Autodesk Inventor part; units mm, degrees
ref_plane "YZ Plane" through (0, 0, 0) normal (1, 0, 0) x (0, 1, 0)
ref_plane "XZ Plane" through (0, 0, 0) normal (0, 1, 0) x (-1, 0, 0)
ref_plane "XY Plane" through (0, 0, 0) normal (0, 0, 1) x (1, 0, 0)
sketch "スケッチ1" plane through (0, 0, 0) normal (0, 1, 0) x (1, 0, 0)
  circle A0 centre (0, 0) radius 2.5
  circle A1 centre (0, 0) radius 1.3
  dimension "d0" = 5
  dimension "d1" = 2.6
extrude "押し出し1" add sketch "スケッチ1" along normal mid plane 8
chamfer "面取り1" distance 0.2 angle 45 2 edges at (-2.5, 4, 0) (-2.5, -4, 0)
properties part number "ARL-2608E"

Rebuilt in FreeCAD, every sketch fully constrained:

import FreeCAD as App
import Part
import Sketcher

V = App.Vector
Q = App.Units.Quantity


def edges_at(feature, points):
    """Names of the edges that pass closest to the given points."""
    edges = feature.Shape.Edges
    near = lambda p: min(range(len(edges)), key=lambda i: edges[i].distToShape(Part.Vertex(*p))[0])
    return sorted({f"Edge{near(p) + 1}" for p in points})

doc = App.newDocument("Part")
body = doc.addObject("PartDesign::Body", "Body")

# Sketch on XZ plane
sketch1 = body.newObject("Sketcher::SketchObject", "Sketch")
sketch1.AttachmentSupport = (doc.getObject("XZ_Plane"), [""])
sketch1.MapMode = "FlatFace"
sketch1.addGeometry([
    Part.Circle(V(0, 0, 0), V(0, 0, 1), 2.5),
    Part.Circle(V(0, 0, 0), V(0, 0, 1), 1.3),
], False)
sketch1.addConstraint([
    Sketcher.Constraint("Coincident", 0, 3, -1, 1),
    Sketcher.Constraint("Coincident", 1, 3, -1, 1),
    Sketcher.Constraint("Diameter", 0, Q("5 mm")),
    Sketcher.Constraint("Diameter", 1, Q("2.6 mm")),
])
pad1 = body.newObject("PartDesign::Pad", "Pad")
pad1.Profile = sketch1
pad1.Length = 8
pad1.Midplane = True
doc.recompute()

chamfer = body.newObject("PartDesign::Chamfer", "Chamfer")
chamfer.Base = (pad1, edges_at(pad1, [(-2.5, 4, 0), (-2.5, -4, 0)]))
chamfer.Size = 0.2

doc.recompute()
